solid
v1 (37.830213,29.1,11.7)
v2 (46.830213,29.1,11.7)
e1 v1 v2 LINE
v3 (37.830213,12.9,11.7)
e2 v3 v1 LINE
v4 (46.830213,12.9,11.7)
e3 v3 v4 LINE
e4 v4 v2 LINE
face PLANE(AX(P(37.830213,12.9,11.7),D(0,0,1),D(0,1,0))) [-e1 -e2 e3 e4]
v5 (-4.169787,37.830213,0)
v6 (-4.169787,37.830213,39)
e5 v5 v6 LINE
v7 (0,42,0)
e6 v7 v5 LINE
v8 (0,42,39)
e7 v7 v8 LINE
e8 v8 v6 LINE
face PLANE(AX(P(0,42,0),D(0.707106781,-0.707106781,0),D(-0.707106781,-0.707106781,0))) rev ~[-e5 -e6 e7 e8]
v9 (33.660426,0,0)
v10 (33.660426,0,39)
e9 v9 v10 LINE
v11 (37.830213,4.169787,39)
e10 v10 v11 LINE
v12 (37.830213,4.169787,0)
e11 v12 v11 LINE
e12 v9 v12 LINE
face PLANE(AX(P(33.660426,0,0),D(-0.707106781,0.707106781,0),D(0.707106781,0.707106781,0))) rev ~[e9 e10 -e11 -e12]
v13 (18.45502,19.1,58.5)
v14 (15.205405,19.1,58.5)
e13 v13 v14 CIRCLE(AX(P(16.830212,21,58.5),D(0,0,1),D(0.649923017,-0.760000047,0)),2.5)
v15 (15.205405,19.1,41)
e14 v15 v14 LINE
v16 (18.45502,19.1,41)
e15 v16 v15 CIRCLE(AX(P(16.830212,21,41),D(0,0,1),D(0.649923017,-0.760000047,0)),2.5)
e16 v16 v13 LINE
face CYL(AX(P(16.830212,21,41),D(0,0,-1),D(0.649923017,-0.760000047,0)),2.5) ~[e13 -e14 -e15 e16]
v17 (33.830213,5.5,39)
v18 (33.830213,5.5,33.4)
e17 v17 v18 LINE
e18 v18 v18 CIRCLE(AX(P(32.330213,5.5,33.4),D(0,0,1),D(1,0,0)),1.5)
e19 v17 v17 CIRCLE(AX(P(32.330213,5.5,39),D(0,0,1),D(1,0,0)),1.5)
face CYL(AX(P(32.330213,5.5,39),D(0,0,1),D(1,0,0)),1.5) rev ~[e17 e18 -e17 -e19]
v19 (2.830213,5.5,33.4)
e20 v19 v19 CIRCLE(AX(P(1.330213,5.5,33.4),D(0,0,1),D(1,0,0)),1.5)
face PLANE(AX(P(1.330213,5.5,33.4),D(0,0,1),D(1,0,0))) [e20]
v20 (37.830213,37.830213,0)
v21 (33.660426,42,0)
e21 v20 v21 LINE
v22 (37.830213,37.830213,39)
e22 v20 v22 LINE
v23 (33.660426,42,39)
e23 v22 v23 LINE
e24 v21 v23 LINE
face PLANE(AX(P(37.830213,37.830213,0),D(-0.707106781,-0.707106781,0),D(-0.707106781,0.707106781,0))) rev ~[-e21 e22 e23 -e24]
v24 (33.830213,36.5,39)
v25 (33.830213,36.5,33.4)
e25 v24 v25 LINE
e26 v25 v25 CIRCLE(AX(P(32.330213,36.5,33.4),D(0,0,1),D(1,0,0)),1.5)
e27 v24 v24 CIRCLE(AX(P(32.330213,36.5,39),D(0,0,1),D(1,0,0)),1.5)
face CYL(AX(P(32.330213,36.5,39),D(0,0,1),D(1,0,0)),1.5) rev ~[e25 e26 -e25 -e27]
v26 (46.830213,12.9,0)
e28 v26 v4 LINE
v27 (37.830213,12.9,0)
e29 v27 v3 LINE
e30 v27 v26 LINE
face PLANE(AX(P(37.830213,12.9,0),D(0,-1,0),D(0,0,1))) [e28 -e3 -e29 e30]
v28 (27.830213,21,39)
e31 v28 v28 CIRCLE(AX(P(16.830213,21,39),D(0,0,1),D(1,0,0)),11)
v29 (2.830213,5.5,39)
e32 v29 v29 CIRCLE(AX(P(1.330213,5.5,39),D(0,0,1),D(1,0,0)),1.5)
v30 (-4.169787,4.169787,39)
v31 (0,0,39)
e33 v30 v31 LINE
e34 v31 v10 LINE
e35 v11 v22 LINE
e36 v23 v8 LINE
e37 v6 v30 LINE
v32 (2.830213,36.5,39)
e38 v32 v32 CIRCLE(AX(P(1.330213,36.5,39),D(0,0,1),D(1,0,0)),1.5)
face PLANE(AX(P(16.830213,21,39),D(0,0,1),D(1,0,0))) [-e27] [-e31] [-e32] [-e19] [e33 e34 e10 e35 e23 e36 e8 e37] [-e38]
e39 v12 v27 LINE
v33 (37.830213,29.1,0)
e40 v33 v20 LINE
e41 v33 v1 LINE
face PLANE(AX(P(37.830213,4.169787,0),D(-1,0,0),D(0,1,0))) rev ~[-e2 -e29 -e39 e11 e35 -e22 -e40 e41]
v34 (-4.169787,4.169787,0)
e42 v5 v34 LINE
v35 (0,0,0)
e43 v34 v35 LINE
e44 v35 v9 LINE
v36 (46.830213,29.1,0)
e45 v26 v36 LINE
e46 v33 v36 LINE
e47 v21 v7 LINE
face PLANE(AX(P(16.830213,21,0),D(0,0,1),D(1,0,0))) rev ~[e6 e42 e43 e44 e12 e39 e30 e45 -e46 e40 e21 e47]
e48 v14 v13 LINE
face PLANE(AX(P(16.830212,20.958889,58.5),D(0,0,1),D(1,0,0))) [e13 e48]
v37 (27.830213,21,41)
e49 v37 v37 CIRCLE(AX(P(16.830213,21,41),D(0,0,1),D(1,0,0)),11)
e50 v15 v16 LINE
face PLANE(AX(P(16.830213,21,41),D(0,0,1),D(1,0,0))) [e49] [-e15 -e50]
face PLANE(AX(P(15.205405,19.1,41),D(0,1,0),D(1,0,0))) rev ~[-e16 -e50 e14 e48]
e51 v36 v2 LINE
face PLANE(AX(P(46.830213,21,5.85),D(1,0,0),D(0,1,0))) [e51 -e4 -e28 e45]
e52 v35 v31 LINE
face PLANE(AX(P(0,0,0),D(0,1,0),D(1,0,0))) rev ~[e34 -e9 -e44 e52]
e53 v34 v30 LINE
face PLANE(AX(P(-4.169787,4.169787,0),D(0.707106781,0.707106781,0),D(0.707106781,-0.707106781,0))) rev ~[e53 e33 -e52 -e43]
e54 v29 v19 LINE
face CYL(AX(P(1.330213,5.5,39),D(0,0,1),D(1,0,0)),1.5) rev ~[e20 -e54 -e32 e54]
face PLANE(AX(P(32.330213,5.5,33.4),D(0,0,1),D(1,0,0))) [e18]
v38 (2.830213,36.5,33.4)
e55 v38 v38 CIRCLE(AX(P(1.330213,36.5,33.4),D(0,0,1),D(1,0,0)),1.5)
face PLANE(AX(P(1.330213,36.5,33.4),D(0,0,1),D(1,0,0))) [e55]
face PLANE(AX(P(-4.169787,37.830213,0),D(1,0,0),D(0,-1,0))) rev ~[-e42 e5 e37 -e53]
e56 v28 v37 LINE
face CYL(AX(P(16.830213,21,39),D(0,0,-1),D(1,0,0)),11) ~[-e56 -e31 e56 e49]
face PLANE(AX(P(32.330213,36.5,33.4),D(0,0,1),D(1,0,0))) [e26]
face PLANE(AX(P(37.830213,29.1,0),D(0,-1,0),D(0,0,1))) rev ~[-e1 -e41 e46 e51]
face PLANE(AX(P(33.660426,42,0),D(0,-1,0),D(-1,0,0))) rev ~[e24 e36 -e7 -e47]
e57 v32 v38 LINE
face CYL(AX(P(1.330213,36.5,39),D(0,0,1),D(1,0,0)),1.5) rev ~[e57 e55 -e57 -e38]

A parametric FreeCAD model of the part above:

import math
import FreeCAD as App
import Part
import Sketcher
Q = App.Units.Quantity


def add_polygon(sketch, points):
    """Adds a closed chain of lines whose ends are joined by coincident constraints."""
    first, n = sketch.GeometryCount, len(points)
    for a, b in zip(points, points[1:] + points[:1]):
        sketch.addGeometry(Part.LineSegment(App.Vector(*a, 0), App.Vector(*b, 0)), False)
    for i in range(n):
        sketch.addConstraint(Sketcher.Constraint("Coincident", first + i, 2, first + (i + 1) % n, 1))

doc = App.newDocument("Part")
body = doc.addObject("PartDesign::Body", "Body")

sketch1 = doc.addObject("Sketcher::SketchObject", "Sketch")
body.addObject(sketch1)
sketch1.AttachmentSupport = (doc.XY_Plane, [""])
sketch1.MapMode = "FlatFace"
add_polygon(sketch1, [(-4, 4), (0, 0), (34, 0), (38, 4), (38, 38), (34, 42), (0, 42), (-4, 38)])
sketch1.addConstraint(Sketcher.Constraint("Horizontal", 1))
sketch1.addConstraint(Sketcher.Constraint("Vertical", 3))
sketch1.addConstraint(Sketcher.Constraint("Horizontal", 5))
sketch1.addConstraint(Sketcher.Constraint("Vertical", 7))
sketch1.addConstraint(Sketcher.Constraint("Coincident", 0, 2, -1, 1))
sketch1.addConstraint(Sketcher.Constraint("PointOnObject", 5, 2, -2))
sketch1.addConstraint(Sketcher.Constraint("Perpendicular", 0, 2))
sketch1.addConstraint(Sketcher.Constraint("Perpendicular", 2, 4))
sketch1.addConstraint(Sketcher.Constraint("Perpendicular", 4, 6))
sketch1.addConstraint(Sketcher.Constraint("Horizontal", 3, 2, 6, 2))
sketch1.addConstraint(Sketcher.Constraint("Horizontal", 2, 2, 7, 2))
sketch1.addConstraint(Sketcher.Constraint("Vertical", 1, 2, 4, 2))
sketch1.addConstraint(Sketcher.Constraint("Equal", 5, 3))
sketch1.addConstraint(Sketcher.Constraint("DistanceY", -1, 1, 4, 2, Q("42 mm")))
sketch1.addConstraint(Sketcher.Constraint("Distance", 0, Q("5.896969 mm")))
pad1 = doc.addObject("PartDesign::Pad", "Pad")
body.addObject(pad1)
pad1.Profile = sketch1
pad1.Length = 39

sketch2 = doc.addObject("Sketcher::SketchObject", "Sketch001")
body.addObject(sketch2)
sketch2.AttachmentSupport = (doc.XY_Plane, [""])
sketch2.MapMode = "FlatFace"
sketch2.AttachmentOffset = App.Placement(App.Vector(0, 0, 39), App.Rotation())
sketch2.addGeometry(Part.Circle(App.Vector(17, 21, 0), App.Vector(0, 0, 1), 11), False)
sketch2.addConstraint(Sketcher.Constraint("Diameter", 0, Q("22 mm")))
sketch2.addConstraint(Sketcher.Constraint("DistanceY", -1, 1, 0, 3, Q("21 mm")))
sketch2.addConstraint(Sketcher.Constraint("DistanceX", -1, 1, 0, 3, Q("16.830213 mm")))
pad2 = doc.addObject("PartDesign::Pad", "Pad001")
body.addObject(pad2)
pad2.Profile = sketch2
pad2.Length = 2

sketch3 = doc.addObject("Sketcher::SketchObject", "Sketch002")
body.addObject(sketch3)
sketch3.AttachmentSupport = (doc.XY_Plane, [""])
sketch3.MapMode = "FlatFace"
sketch3.AttachmentOffset = App.Placement(App.Vector(0, 0, 41), App.Rotation())
sketch3.addGeometry(Part.LineSegment(App.Vector(15.2, 19.1, 0), App.Vector(18.5, 19.1, 0)), False)
sketch3.addGeometry(Part.ArcOfCircle(Part.Circle(App.Vector(16.8, 21, 0), App.Vector(0, 0, 1), 2.5), math.radians(-49), math.radians(229)), False)
sketch3.addConstraint(Sketcher.Constraint("Coincident", 0, 1, 1, 2))
sketch3.addConstraint(Sketcher.Constraint("Coincident", 1, 1, 0, 2))
sketch3.addConstraint(Sketcher.Constraint("Horizontal", 0))
sketch3.addConstraint(Sketcher.Constraint("Radius", 1, Q("2.5 mm")))
sketch3.addConstraint(Sketcher.Constraint("DistanceY", -1, 1, 1, 3, Q("21 mm")))
sketch3.addConstraint(Sketcher.Constraint("DistanceY", -1, 1, 0, 1, Q("19.1 mm")))
sketch3.addConstraint(Sketcher.Constraint("DistanceX", -1, 1, 1, 1, Q("18.45502 mm")))
pad3 = doc.addObject("PartDesign::Pad", "Pad002")
body.addObject(pad3)
pad3.Profile = sketch3
pad3.Length = 17.5

sketch4 = doc.addObject("Sketcher::SketchObject", "Sketch003")
body.addObject(sketch4)
sketch4.AttachmentSupport = (doc.YZ_Plane, [""])
sketch4.MapMode = "FlatFace"
sketch4.AttachmentOffset = App.Placement(App.Vector(0, 0, 37.830213), App.Rotation())
add_polygon(sketch4, [(13, 12), (13, 0), (29, 0), (29, 12)])
sketch4.addConstraint(Sketcher.Constraint("Vertical", 0))
sketch4.addConstraint(Sketcher.Constraint("Horizontal", 1))
sketch4.addConstraint(Sketcher.Constraint("Vertical", 2))
sketch4.addConstraint(Sketcher.Constraint("Horizontal", 3))
sketch4.addConstraint(Sketcher.Constraint("PointOnObject", 0, 2, -1))
sketch4.addConstraint(Sketcher.Constraint("DistanceX", 1, 1, 1, 2, Q("16.2 mm")))
sketch4.addConstraint(Sketcher.Constraint("DistanceY", 0, 2, 0, 1, Q("11.7 mm")))
sketch4.addConstraint(Sketcher.Constraint("DistanceX", -1, 1, 0, 2, Q("12.9 mm")))
pad4 = doc.addObject("PartDesign::Pad", "Pad003")
body.addObject(pad4)
pad4.Profile = sketch4
pad4.Length = 9

sketch5 = doc.addObject("Sketcher::SketchObject", "Sketch004")
body.addObject(sketch5)
sketch5.AttachmentSupport = (doc.XY_Plane, [""])
sketch5.MapMode = "FlatFace"
sketch5.AttachmentOffset = App.Placement(App.Vector(0, 0, 39), App.Rotation())
sketch5.addGeometry(Part.Circle(App.Vector(1.3, 36.5, 0), App.Vector(0, 0, 1), 1.5), False)
sketch5.addGeometry(Part.Circle(App.Vector(32.3, 36.5, 0), App.Vector(0, 0, 1), 1.5), False)
sketch5.addGeometry(Part.Circle(App.Vector(32.3, 5.5, 0), App.Vector(0, 0, 1), 1.5), False)
sketch5.addGeometry(Part.Circle(App.Vector(1.3, 5.5, 0), App.Vector(0, 0, 1), 1.5), False)
sketch5.addConstraint(Sketcher.Constraint("Equal", 0, 1))
sketch5.addConstraint(Sketcher.Constraint("Equal", 1, 2))
sketch5.addConstraint(Sketcher.Constraint("Equal", 2, 3))
sketch5.addConstraint(Sketcher.Constraint("Horizontal", 0, 3, 1, 3))
sketch5.addConstraint(Sketcher.Constraint("Horizontal", 2, 3, 3, 3))
sketch5.addConstraint(Sketcher.Constraint("Vertical", 1, 3, 2, 3))
sketch5.addConstraint(Sketcher.Constraint("Vertical", 0, 3, 3, 3))
sketch5.addConstraint(Sketcher.Constraint("Diameter", 0, Q("3 mm")))
sketch5.addConstraint(Sketcher.Constraint("DistanceX", 0, 3, 1, 3, Q("31 mm")))
sketch5.addConstraint(Sketcher.Constraint("DistanceY", 2, 3, 1, 3, Q("31 mm")))
sketch5.addConstraint(Sketcher.Constraint("DistanceY", -1, 1, 0, 3, Q("36.5 mm")))
sketch5.addConstraint(Sketcher.Constraint("DistanceX", -1, 1, 0, 3, Q("1.330213 mm")))
pocket1 = doc.addObject("PartDesign::Pocket", "Pocket")
body.addObject(pocket1)
pocket1.Profile = sketch5
pocket1.Length = 5.6

doc.recompute()
